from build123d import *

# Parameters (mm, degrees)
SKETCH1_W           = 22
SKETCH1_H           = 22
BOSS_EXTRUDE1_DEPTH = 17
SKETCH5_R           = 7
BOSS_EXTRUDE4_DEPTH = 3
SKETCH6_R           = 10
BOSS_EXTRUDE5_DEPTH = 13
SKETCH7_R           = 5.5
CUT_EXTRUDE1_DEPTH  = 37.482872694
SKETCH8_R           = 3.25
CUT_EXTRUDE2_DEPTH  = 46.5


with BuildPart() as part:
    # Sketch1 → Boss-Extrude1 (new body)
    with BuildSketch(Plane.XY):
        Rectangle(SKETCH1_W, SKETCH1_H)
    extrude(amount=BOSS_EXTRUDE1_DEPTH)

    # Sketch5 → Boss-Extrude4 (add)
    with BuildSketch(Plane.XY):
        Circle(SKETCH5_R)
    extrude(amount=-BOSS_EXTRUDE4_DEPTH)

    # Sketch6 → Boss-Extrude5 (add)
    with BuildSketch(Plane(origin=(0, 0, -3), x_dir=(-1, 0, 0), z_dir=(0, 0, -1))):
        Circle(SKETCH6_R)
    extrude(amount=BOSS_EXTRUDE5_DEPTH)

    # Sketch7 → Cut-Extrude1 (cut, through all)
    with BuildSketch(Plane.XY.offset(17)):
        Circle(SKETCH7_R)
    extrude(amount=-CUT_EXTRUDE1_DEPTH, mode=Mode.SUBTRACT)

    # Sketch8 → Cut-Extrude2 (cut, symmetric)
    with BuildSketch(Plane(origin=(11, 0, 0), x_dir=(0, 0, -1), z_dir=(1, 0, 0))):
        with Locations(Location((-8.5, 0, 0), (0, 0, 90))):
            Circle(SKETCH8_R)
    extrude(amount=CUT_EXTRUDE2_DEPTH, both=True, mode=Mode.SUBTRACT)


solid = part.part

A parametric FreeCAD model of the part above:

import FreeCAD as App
import Part
import Sketcher

V = App.Vector
Q = App.Units.Quantity

doc = App.newDocument("Part")
params = doc.addObject("Spreadsheet::Sheet", "Params")
for row, (alias, value) in enumerate([
    ("sketch1_width", "22 mm"),
    ("pad1_length", "17 mm"),
    ("sketch2_diameter", "14 mm"),
    ("pad2_length", "3 mm"),
    ("sketch3_diameter", "20 mm"),
    ("pad3_length", "13 mm"),
    ("sketch4_diameter", "11 mm"),
    ("sketch5_diameter", "6.5 mm"),
    ("pocket2_length", "93 mm"),
], start=1):
    params.set(f"A{row}", alias)
    params.set(f"B{row}", "=" + value)
    params.setAlias(f"B{row}", alias)

body = doc.addObject("PartDesign::Body", "Body")

# Sketch on XY plane
sketch1 = body.newObject("Sketcher::SketchObject", "Sketch")
sketch1.AttachmentSupport = (doc.getObject("XY_Plane"), [""])
sketch1.MapMode = "FlatFace"
sketch1.addGeometry([
    Part.LineSegment(V(-11, 11, 0), V(-11, -11, 0)),
    Part.LineSegment(V(-11, -11, 0), V(11, -11, 0)),
    Part.LineSegment(V(11, -11, 0), V(11, 11, 0)),
    Part.LineSegment(V(11, 11, 0), V(-11, 11, 0)),
], False)
sketch1.addConstraint([
    Sketcher.Constraint("Coincident", 0, 2, 1, 1),
    Sketcher.Constraint("Coincident", 1, 2, 2, 1),
    Sketcher.Constraint("Coincident", 2, 2, 3, 1),
    Sketcher.Constraint("Coincident", 3, 2, 0, 1),
    Sketcher.Constraint("Vertical", 0),
    Sketcher.Constraint("Horizontal", 1),
    Sketcher.Constraint("Vertical", 2),
    Sketcher.Constraint("Horizontal", 3),
    Sketcher.Constraint("Symmetric", 0, 2, 2, 2, -1, 1),
    Sketcher.Constraint("Equal", 3, 0),
    Sketcher.Constraint("DistanceX", 1, 1, 1, 2, Q("22 mm")),
])
sketch1.setExpression("Constraints[10]", "Params.sketch1_width")
pad1 = body.newObject("PartDesign::Pad", "Pad")
pad1.Profile = sketch1
pad1.setExpression("Length", "Params.pad1_length")

# Sketch on XY plane
sketch2 = body.newObject("Sketcher::SketchObject", "Sketch001")
sketch2.AttachmentSupport = (doc.getObject("XY_Plane"), [""])
sketch2.MapMode = "FlatFace"
sketch2.addGeometry(Part.Circle(V(0, 0, 0), V(0, 0, 1), 7), False)
sketch2.addConstraint([
    Sketcher.Constraint("Coincident", 0, 3, -1, 1),
    Sketcher.Constraint("Diameter", 0, Q("14 mm")),
])
sketch2.setExpression("Constraints[1]", "Params.sketch2_diameter")
pad2 = body.newObject("PartDesign::Pad", "Pad001")
pad2.Profile = sketch2
pad2.setExpression("Length", "Params.pad2_length")
pad2.Reversed = True

# Sketch on XY plane
sketch3 = body.newObject("Sketcher::SketchObject", "Sketch002")
sketch3.AttachmentSupport = (doc.getObject("XY_Plane"), [""])
sketch3.MapMode = "FlatFace"
sketch3.AttachmentOffset = App.Placement(V(0, 0, -3), App.Rotation())
sketch3.addGeometry(Part.Circle(V(0, 0, 0), V(0, 0, 1), 10), False)
sketch3.addConstraint([
    Sketcher.Constraint("Coincident", 0, 3, -1, 1),
    Sketcher.Constraint("Diameter", 0, Q("20 mm")),
])
sketch3.setExpression("Constraints[1]", "Params.sketch3_diameter")
pad3 = body.newObject("PartDesign::Pad", "Pad002")
pad3.Profile = sketch3
pad3.setExpression("Length", "Params.pad3_length")
pad3.Reversed = True

# Sketch on XY plane
sketch4 = body.newObject("Sketcher::SketchObject", "Sketch003")
sketch4.AttachmentSupport = (doc.getObject("XY_Plane"), [""])
sketch4.MapMode = "FlatFace"
sketch4.AttachmentOffset = App.Placement(V(0, 0, 17), App.Rotation())
sketch4.addGeometry(Part.Circle(V(0, 0, 0), V(0, 0, 1), 6), False)
sketch4.addConstraint([
    Sketcher.Constraint("Coincident", 0, 3, -1, 1),
    Sketcher.Constraint("Diameter", 0, Q("11 mm")),
])
sketch4.setExpression("Constraints[1]", "Params.sketch4_diameter")
pocket1 = body.newObject("PartDesign::Pocket", "Pocket")
pocket1.Profile = sketch4
pocket1.Type = "ThroughAll"

# Sketch on YZ plane
sketch5 = body.newObject("Sketcher::SketchObject", "Sketch004")
sketch5.AttachmentSupport = (doc.getObject("YZ_Plane"), [""])
sketch5.MapMode = "FlatFace"
sketch5.AttachmentOffset = App.Placement(V(0, 0, 11), App.Rotation())
sketch5.addGeometry(Part.Circle(V(0, 8.5, 0), V(0, 0, 1), 3.2), False)
sketch5.addConstraint([
    Sketcher.Constraint("PointOnObject", 0, 3, -2),
    Sketcher.Constraint("Diameter", 0, Q("6.5 mm")),
    Sketcher.Constraint("DistanceY", -1, 1, 0, 3, Q("8.5 mm")),
])
sketch5.setExpression("Constraints[1]", "Params.sketch5_diameter")
pocket2 = body.newObject("PartDesign::Pocket", "Pocket001")
pocket2.Profile = sketch5
pocket2.setExpression("Length", "Params.pocket2_length")
pocket2.Midplane = True

doc.recompute()
